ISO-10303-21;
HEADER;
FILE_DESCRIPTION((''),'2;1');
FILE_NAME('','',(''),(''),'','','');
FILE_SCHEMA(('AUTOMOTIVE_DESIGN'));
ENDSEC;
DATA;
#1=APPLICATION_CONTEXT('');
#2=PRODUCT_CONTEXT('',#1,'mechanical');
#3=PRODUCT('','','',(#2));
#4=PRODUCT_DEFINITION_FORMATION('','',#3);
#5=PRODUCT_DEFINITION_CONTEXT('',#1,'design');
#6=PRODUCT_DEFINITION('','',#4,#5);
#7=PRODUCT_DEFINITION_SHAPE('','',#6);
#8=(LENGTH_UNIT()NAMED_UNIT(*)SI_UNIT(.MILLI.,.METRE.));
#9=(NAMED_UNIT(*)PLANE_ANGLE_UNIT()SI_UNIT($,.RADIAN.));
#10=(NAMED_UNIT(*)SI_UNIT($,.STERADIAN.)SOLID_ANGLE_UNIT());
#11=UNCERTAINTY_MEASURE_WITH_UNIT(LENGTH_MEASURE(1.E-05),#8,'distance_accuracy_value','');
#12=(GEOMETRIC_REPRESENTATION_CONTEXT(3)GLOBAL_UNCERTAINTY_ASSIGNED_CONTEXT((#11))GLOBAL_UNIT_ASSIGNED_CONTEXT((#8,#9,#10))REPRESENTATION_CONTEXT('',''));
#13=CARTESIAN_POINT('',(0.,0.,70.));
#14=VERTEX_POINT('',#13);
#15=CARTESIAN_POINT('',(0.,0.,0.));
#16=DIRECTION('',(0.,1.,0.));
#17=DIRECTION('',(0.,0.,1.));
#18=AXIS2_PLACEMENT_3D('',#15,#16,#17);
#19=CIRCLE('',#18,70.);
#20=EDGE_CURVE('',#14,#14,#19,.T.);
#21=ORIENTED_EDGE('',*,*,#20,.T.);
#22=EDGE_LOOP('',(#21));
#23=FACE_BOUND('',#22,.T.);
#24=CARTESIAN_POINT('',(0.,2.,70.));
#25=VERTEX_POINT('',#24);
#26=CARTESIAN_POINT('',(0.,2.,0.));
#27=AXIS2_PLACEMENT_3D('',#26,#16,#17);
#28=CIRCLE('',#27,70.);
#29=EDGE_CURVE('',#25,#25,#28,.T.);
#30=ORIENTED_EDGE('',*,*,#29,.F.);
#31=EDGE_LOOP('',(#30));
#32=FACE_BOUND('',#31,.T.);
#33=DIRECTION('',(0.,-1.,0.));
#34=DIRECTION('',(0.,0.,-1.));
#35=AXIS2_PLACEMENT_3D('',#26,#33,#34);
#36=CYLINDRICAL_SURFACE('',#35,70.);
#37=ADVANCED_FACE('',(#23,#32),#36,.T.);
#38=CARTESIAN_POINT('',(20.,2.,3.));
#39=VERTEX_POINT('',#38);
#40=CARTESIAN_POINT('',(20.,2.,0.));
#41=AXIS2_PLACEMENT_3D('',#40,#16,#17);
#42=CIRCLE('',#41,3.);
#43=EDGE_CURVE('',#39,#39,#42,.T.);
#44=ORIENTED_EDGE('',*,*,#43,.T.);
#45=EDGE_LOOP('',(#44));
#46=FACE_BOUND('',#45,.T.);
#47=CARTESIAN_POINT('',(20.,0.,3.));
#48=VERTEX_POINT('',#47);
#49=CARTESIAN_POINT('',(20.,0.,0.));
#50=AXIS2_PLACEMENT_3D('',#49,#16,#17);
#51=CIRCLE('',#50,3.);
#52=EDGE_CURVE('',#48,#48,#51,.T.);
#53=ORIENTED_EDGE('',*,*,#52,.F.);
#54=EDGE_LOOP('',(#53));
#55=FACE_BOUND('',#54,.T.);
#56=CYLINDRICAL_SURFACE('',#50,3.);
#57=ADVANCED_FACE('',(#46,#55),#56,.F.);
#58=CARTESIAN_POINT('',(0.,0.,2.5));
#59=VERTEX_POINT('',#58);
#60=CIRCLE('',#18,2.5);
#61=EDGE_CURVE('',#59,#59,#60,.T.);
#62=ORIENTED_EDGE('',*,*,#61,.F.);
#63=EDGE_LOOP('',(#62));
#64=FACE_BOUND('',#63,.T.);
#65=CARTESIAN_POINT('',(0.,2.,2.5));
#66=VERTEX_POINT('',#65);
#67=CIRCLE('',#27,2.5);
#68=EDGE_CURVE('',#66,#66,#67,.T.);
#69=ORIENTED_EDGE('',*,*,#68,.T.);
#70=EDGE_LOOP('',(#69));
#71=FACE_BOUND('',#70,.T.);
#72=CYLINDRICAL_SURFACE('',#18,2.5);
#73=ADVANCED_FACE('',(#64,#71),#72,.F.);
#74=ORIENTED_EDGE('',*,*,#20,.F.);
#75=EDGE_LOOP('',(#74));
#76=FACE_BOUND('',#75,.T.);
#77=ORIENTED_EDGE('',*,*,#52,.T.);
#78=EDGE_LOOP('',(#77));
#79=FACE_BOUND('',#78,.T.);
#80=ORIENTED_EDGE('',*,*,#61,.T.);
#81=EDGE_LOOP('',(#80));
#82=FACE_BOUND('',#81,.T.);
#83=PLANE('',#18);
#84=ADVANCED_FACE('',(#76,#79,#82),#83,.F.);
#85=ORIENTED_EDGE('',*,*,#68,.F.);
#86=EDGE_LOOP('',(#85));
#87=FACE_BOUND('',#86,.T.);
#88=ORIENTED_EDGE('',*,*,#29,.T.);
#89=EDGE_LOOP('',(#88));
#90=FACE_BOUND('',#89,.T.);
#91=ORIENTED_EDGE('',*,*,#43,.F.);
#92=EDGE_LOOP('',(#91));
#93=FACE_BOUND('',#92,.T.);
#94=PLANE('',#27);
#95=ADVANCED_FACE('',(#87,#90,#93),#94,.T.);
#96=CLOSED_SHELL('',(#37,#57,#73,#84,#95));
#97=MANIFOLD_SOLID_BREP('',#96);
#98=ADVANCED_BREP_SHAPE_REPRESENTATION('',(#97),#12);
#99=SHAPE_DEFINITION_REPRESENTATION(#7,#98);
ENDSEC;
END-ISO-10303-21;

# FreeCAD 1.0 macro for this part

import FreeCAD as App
import Part
import Sketcher

doc = App.newDocument("Part")
body = doc.addObject("PartDesign::Body", "Body")

sketch1 = body.newObject("Sketcher::SketchObject", "Sketch")
sketch1.AttachmentSupport = (doc.getObject("XZ_Plane"), [""])
sketch1.MapMode = "FlatFace"
sketch1.addGeometry(Part.Circle(App.Vector(0, 0, 0), App.Vector(0, 0, 1), 70), False)
sketch1.addConstraint([
    Sketcher.Constraint("Coincident", 0, 3, -1, 1),
    Sketcher.Constraint("Diameter", 0, 140.0),
])
pad1 = body.newObject("PartDesign::Pad", "Pad")
pad1.Profile = sketch1
pad1.Length = 2
pad1.Reversed = True

sketch2 = body.newObject("Sketcher::SketchObject", "Sketch001")
sketch2.AttachmentSupport = (doc.getObject("XZ_Plane"), [""])
sketch2.MapMode = "FlatFace"
sketch2.AttachmentOffset = App.Placement(App.Vector(0, 0, -2), App.Rotation())
sketch2.addGeometry([
    Part.Circle(App.Vector(0, 0, 0), App.Vector(0, 0, 1), 2.5),
    Part.Circle(App.Vector(20, 0, 0), App.Vector(0, 0, 1), 3),
], False)
sketch2.addConstraint([
    Sketcher.Constraint("Coincident", 0, 3, -1, 1),
    Sketcher.Constraint("PointOnObject", 1, 3, -1),
    Sketcher.Constraint("Diameter", 0, 5.0),
    Sketcher.Constraint("Diameter", 1, 6.0),
    Sketcher.Constraint("DistanceX", -1, 1, 1, 3, 20.0),
])
pocket1 = body.newObject("PartDesign::Pocket", "Pocket")
pocket1.Profile = sketch2
pocket1.Type = "ThroughAll"
pocket1.Reversed = True

doc.recompute()
